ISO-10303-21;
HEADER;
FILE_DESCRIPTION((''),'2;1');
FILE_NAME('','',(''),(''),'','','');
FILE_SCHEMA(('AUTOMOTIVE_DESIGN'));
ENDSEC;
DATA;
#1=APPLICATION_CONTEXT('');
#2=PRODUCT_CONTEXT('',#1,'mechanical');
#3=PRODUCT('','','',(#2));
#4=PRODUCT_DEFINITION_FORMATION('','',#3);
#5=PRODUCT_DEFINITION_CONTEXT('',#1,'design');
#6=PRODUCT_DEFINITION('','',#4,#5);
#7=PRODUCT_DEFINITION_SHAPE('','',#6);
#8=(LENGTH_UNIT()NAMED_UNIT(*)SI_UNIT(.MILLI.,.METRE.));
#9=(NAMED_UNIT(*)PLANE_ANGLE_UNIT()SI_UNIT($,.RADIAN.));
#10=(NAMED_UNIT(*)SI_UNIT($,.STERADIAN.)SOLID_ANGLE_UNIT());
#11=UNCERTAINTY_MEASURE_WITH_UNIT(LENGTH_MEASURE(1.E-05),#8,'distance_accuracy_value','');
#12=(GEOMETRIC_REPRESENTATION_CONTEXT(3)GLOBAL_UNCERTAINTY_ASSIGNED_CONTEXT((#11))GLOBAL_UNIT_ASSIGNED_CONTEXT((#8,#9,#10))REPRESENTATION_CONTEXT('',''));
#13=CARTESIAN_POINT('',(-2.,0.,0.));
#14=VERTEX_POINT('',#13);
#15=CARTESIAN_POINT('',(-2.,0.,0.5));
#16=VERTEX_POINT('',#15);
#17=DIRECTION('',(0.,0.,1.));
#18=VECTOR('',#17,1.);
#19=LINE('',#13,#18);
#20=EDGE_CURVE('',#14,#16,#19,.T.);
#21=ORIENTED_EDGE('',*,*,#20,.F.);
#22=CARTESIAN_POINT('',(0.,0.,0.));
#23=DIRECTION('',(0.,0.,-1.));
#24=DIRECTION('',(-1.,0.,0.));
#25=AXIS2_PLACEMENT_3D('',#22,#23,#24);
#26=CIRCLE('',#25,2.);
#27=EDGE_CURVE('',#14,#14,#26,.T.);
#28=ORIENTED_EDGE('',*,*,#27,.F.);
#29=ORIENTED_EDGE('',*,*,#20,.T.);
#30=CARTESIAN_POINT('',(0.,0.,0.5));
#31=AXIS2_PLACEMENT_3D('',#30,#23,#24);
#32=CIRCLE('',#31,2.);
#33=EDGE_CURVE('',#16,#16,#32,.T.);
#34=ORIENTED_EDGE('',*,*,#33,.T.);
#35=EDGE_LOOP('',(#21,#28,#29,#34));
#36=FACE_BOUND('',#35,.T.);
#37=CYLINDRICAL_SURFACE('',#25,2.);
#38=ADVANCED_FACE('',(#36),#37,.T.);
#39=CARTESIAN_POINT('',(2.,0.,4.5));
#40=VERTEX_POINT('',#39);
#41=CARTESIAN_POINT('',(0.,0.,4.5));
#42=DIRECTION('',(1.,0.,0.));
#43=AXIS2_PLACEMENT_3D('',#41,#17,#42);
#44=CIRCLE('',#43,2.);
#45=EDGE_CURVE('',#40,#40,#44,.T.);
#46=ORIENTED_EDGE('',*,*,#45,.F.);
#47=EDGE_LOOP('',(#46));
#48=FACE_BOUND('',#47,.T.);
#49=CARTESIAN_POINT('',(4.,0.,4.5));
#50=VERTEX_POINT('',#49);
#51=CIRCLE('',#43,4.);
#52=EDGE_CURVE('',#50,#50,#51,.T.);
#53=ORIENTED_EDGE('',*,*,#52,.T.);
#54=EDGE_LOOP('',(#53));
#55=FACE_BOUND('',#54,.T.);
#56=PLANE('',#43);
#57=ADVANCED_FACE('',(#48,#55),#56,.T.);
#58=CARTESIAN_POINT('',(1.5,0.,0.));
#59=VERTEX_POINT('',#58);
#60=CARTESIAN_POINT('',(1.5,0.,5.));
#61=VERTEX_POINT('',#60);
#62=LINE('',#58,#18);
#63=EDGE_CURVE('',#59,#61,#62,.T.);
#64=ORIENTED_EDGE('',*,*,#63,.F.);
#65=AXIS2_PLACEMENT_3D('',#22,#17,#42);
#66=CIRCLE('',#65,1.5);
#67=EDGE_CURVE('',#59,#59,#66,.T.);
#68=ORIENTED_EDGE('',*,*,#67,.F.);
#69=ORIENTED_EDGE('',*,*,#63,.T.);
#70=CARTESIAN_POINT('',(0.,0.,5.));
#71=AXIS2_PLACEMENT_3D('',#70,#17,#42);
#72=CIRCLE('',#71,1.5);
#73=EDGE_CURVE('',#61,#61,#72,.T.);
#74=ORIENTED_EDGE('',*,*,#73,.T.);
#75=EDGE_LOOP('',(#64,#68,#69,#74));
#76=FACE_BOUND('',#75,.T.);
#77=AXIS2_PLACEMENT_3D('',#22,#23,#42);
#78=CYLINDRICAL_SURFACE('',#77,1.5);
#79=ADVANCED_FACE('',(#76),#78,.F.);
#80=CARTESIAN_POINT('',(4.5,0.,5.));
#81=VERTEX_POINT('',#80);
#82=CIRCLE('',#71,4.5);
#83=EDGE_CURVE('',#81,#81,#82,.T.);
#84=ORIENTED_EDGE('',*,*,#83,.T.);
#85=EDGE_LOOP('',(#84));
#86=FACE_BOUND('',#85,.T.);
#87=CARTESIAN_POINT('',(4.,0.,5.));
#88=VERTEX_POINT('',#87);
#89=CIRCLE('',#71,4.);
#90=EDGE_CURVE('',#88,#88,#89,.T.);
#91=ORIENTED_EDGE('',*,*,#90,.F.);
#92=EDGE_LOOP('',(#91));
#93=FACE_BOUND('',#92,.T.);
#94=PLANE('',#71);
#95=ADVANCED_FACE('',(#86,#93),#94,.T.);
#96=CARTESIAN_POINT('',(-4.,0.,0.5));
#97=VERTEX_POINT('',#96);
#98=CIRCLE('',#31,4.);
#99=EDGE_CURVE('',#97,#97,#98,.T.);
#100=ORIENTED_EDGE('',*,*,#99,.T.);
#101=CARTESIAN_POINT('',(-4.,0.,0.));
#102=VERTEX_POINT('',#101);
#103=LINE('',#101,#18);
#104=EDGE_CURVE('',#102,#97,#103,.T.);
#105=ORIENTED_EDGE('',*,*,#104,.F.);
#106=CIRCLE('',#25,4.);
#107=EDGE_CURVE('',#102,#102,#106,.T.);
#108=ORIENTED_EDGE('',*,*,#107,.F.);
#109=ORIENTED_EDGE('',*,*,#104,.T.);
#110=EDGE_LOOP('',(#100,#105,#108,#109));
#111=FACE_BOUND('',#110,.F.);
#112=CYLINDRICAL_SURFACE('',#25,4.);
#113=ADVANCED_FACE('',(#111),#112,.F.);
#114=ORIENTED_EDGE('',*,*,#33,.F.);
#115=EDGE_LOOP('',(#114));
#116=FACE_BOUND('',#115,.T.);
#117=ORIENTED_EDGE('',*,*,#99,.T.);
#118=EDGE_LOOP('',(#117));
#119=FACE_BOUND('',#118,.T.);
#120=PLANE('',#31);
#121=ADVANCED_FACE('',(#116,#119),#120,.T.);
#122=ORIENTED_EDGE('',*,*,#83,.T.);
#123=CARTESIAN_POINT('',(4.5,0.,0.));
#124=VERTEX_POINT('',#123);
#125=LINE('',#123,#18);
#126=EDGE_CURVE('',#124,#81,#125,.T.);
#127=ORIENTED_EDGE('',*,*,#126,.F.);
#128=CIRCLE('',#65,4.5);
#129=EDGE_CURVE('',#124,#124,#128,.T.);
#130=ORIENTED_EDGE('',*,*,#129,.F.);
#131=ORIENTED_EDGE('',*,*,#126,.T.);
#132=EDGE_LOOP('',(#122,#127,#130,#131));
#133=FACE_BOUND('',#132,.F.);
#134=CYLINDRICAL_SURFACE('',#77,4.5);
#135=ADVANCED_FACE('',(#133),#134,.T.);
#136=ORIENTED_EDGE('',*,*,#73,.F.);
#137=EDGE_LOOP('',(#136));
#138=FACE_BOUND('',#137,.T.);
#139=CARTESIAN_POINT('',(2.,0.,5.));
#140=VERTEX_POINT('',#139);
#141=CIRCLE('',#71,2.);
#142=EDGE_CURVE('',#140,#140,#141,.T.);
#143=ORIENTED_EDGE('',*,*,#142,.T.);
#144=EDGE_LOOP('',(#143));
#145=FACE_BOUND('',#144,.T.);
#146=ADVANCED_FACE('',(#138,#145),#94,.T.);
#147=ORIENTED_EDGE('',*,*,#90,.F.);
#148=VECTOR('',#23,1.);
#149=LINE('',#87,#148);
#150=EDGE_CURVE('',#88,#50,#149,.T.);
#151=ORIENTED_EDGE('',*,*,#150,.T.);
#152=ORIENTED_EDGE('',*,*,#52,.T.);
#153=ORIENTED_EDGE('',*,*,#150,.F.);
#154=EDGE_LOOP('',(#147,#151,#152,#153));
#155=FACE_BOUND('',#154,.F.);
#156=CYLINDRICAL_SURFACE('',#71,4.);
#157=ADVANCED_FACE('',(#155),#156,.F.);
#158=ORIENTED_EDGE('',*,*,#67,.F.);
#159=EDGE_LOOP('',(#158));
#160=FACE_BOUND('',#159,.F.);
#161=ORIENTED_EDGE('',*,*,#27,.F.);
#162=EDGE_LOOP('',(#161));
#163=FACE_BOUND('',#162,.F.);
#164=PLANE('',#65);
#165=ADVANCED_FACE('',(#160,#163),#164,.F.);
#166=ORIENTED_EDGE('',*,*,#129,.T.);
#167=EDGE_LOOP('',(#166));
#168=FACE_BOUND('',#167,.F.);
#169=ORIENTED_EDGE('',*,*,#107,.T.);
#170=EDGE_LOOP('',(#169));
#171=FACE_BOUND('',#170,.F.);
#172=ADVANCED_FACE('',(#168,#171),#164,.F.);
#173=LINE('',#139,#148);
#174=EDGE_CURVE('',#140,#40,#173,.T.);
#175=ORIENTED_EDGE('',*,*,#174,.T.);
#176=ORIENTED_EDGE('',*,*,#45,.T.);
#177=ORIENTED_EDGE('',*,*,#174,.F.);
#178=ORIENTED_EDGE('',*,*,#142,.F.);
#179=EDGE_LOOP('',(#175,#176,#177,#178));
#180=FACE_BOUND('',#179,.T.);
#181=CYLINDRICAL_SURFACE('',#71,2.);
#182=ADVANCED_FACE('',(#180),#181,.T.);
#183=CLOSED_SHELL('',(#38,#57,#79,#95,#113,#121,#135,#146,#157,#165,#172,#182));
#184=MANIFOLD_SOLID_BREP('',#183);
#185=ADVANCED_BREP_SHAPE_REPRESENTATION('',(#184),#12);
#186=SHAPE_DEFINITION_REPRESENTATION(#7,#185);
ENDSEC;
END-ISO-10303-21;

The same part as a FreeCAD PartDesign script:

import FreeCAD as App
import Part
import Sketcher

V = App.Vector

doc = App.newDocument("Part")
body = doc.addObject("PartDesign::Body", "Body")

# Sketch on XY plane
sketch1 = body.newObject("Sketcher::SketchObject", "Sketch")
sketch1.AttachmentSupport = (doc.getObject("XY_Plane"), [""])
sketch1.MapMode = "FlatFace"
sketch1.addGeometry([
    Part.Circle(V(0, 0, 0), V(0, 0, 1), 4.5),
    Part.Circle(V(0, 0, 0), V(0, 0, 1), 1.5),
], False)
sketch1.addConstraint([
    Sketcher.Constraint("Coincident", 0, 3, -1, 1),
    Sketcher.Constraint("Coincident", 1, 3, -1, 1),
    Sketcher.Constraint("Diameter", 0, 9.0),
    Sketcher.Constraint("Diameter", 1, 3.0),
])
pad1 = body.newObject("PartDesign::Pad", "Pad")
pad1.Profile = sketch1
pad1.Length = 5

# Sketch on XY plane
sketch2 = body.newObject("Sketcher::SketchObject", "Sketch001")
sketch2.AttachmentSupport = (doc.getObject("XY_Plane"), [""])
sketch2.MapMode = "FlatFace"
sketch2.AttachmentOffset = App.Placement(V(0, 0, 5), App.Rotation())
sketch2.addGeometry([
    Part.Circle(V(0, 0, 0), V(0, 0, 1), 4),
    Part.Circle(V(0, 0, 0), V(0, 0, 1), 2),
], False)
sketch2.addConstraint([
    Sketcher.Constraint("Coincident", 0, 3, -1, 1),
    Sketcher.Constraint("Coincident", 1, 3, -1, 1),
    Sketcher.Constraint("Diameter", 0, 8.0),
    Sketcher.Constraint("Diameter", 1, 4.0),
])
pocket1 = body.newObject("PartDesign::Pocket", "Pocket")
pocket1.Profile = sketch2
pocket1.Length = 0.5

# Sketch on XY plane
sketch3 = body.newObject("Sketcher::SketchObject", "Sketch002")
sketch3.AttachmentSupport = (doc.getObject("XY_Plane"), [""])
sketch3.MapMode = "FlatFace"
sketch3.addGeometry([
    Part.Circle(V(0, 0, 0), V(0, 0, 1), 4),
    Part.Circle(V(0, 0, 0), V(0, 0, 1), 2),
], False)
sketch3.addConstraint([
    Sketcher.Constraint("Coincident", 0, 3, -1, 1),
    Sketcher.Constraint("Coincident", 1, 3, -1, 1),
    Sketcher.Constraint("Diameter", 0, 8.0),
    Sketcher.Constraint("Diameter", 1, 4.0),
])
pocket2 = body.newObject("PartDesign::Pocket", "Pocket001")
pocket2.Profile = sketch3
pocket2.Length = 0.5
pocket2.Reversed = True

doc.recompute()
